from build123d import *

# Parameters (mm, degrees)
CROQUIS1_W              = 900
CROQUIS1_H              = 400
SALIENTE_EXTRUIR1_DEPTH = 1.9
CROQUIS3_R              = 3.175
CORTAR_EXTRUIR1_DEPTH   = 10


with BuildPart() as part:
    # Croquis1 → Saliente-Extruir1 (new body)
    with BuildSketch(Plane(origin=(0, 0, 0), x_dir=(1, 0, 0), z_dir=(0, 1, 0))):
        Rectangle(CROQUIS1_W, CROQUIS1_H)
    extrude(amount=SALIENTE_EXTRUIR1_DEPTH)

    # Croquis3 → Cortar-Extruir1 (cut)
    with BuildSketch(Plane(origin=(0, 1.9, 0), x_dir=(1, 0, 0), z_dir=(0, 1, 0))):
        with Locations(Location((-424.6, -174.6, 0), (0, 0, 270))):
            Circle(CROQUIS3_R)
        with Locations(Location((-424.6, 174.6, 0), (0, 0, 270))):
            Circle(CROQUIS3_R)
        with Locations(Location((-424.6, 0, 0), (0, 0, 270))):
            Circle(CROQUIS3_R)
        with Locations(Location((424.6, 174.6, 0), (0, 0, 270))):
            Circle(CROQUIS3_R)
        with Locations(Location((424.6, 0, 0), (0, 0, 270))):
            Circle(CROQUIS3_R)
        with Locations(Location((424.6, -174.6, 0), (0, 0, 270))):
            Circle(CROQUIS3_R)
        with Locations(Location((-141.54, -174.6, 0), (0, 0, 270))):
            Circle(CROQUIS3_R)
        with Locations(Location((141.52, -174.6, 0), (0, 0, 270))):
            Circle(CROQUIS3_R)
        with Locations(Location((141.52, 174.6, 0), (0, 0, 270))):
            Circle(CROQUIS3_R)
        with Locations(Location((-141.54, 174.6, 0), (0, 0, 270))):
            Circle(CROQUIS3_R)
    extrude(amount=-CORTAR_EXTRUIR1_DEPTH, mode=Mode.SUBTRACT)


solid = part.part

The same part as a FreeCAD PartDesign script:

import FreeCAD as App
import Part
import Sketcher


def add_polygon(sketch, points):
    """Adds a closed chain of lines whose ends are joined by coincident constraints."""
    first, n = sketch.GeometryCount, len(points)
    for a, b in zip(points, points[1:] + points[:1]):
        sketch.addGeometry(Part.LineSegment(App.Vector(*a, 0), App.Vector(*b, 0)), False)
    for i in range(n):
        sketch.addConstraint(Sketcher.Constraint("Coincident", first + i, 2, first + (i + 1) % n, 1))

doc = App.newDocument("Part")
body = doc.addObject("PartDesign::Body", "Body")

# Sketch on XZ plane
sketch1 = body.newObject("Sketcher::SketchObject", "Sketch")
sketch1.AttachmentSupport = (doc.getObject("XZ_Plane"), [""])
sketch1.MapMode = "FlatFace"
add_polygon(sketch1, [(-450, -200), (-450, 200), (450, 200), (450, -200)])  # lines 0-3
sketch1.addConstraint(Sketcher.Constraint("Vertical", 0))
sketch1.addConstraint(Sketcher.Constraint("Horizontal", 1))
sketch1.addConstraint(Sketcher.Constraint("Vertical", 2))
sketch1.addConstraint(Sketcher.Constraint("Horizontal", 3))
sketch1.addConstraint(Sketcher.Constraint("Symmetric", 0, 2, 2, 2, -1, 1))
sketch1.addConstraint(Sketcher.Constraint("DistanceX", 1, 1, 1, 2, 900.0))
sketch1.addConstraint(Sketcher.Constraint("DistanceY", 0, 1, 0, 2, 400.0))
pad1 = body.newObject("PartDesign::Pad", "Pad")
pad1.Profile = sketch1
pad1.Length = 1.9
pad1.Reversed = True

# Sketch on XZ plane
sketch2 = body.newObject("Sketcher::SketchObject", "Sketch001")
sketch2.AttachmentSupport = (doc.getObject("XZ_Plane"), [""])
sketch2.MapMode = "FlatFace"
sketch2.AttachmentOffset = App.Placement(App.Vector(0, 0, -1.9), App.Rotation())
sketch2.addGeometry(Part.Circle(App.Vector(-424.6, 174.6, 0), App.Vector(0, 0, 1), 3.2), False)
sketch2.addGeometry(Part.Circle(App.Vector(-424.6, -174.6, 0), App.Vector(0, 0, 1), 3.2), False)
sketch2.addGeometry(Part.Circle(App.Vector(-424.6, 0, 0), App.Vector(0, 0, 1), 3.2), False)
sketch2.addGeometry(Part.Circle(App.Vector(424.6, -174.6, 0), App.Vector(0, 0, 1), 3.2), False)
sketch2.addGeometry(Part.Circle(App.Vector(424.6, 0, 0), App.Vector(0, 0, 1), 3.2), False)
sketch2.addGeometry(Part.Circle(App.Vector(424.6, 174.6, 0), App.Vector(0, 0, 1), 3.2), False)
sketch2.addGeometry(Part.Circle(App.Vector(-141.5, 174.6, 0), App.Vector(0, 0, 1), 3.2), False)
sketch2.addGeometry(Part.Circle(App.Vector(141.5, 174.6, 0), App.Vector(0, 0, 1), 3.2), False)
sketch2.addGeometry(Part.Circle(App.Vector(141.5, -174.6, 0), App.Vector(0, 0, 1), 3.2), False)
sketch2.addGeometry(Part.Circle(App.Vector(-141.5, -174.6, 0), App.Vector(0, 0, 1), 3.2), False)
sketch2.addConstraint(Sketcher.Constraint("Equal", 0, 1))
sketch2.addConstraint(Sketcher.Constraint("Equal", 1, 2))
sketch2.addConstraint(Sketcher.Constraint("Equal", 2, 3))
sketch2.addConstraint(Sketcher.Constraint("Equal", 3, 4))
sketch2.addConstraint(Sketcher.Constraint("Equal", 4, 5))
sketch2.addConstraint(Sketcher.Constraint("Equal", 5, 6))
sketch2.addConstraint(Sketcher.Constraint("Equal", 6, 7))
sketch2.addConstraint(Sketcher.Constraint("Equal", 7, 8))
sketch2.addConstraint(Sketcher.Constraint("Equal", 8, 9))
sketch2.addConstraint(Sketcher.Constraint("Symmetric", 0, 3, 3, 3, -1, 1))
sketch2.addConstraint(Sketcher.Constraint("Symmetric", 2, 3, 4, 3, -1, 1))
sketch2.addConstraint(Sketcher.Constraint("Symmetric", 1, 3, 5, 3, -1, 1))
sketch2.addConstraint(Sketcher.Constraint("Symmetric", 1, 3, 3, 3, -2))
sketch2.addConstraint(Sketcher.Constraint("Symmetric", 7, 3, 8, 3, -1))
sketch2.addConstraint(Sketcher.Constraint("Symmetric", 6, 3, 9, 3, -1))
sketch2.addConstraint(Sketcher.Constraint("PointOnObject", 2, 3, -1))
sketch2.addConstraint(Sketcher.Constraint("Horizontal", 5, 3, 6, 3))
sketch2.addConstraint(Sketcher.Constraint("Horizontal", 6, 3, 7, 3))
sketch2.addConstraint(Sketcher.Constraint("Vertical", 1, 3, 2, 3))
sketch2.addConstraint(Sketcher.Constraint("Diameter", 0, 6.35))
sketch2.addConstraint(Sketcher.Constraint("DistanceX", 0, 3, -1, 1, 424.6))
sketch2.addConstraint(Sketcher.Constraint("DistanceY", -1, 1, 0, 3, 174.6))
sketch2.addConstraint(Sketcher.Constraint("DistanceX", 6, 3, -1, 1, 141.54))
sketch2.addConstraint(Sketcher.Constraint("DistanceX", -1, 1, 7, 3, 141.52))
pocket1 = body.newObject("PartDesign::Pocket", "Pocket")
pocket1.Profile = sketch2
pocket1.Length = 10
pocket1.Reversed = True

doc.recompute()
